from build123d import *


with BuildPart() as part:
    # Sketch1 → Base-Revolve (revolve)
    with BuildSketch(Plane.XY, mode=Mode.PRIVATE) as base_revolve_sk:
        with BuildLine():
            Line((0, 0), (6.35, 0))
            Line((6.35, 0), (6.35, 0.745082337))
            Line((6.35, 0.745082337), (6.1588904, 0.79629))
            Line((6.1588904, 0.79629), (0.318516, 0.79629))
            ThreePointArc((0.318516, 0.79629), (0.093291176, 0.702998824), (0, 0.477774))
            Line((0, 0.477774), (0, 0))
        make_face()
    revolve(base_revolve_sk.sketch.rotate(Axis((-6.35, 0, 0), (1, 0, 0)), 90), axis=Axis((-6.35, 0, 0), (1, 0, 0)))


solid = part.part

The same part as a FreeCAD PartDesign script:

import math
import FreeCAD as App
import Part
import Sketcher
from FreeCAD import Vector
Q = App.Units.Quantity

doc = App.newDocument("Part")
body = doc.addObject("PartDesign::Body", "Body")

# Sketch on XY plane
sketch1 = body.newObject("Sketcher::SketchObject", "Sketch")
sketch1.AttachmentSupport = (doc.getObject("XY_Plane"), [""])
sketch1.MapMode = "FlatFace"
sketch1.addGeometry(Part.LineSegment(Vector(0, 0, 0), Vector(6.35, 0, 0)), False)
sketch1.addGeometry(Part.LineSegment(Vector(6.35, 0, 0), Vector(6.35, 0.75, 0)), False)
sketch1.addGeometry(Part.LineSegment(Vector(6.35, 0.75, 0), Vector(6.16, 0.8, 0)), False)
sketch1.addGeometry(Part.LineSegment(Vector(6.16, 0.8, 0), Vector(0.32, 0.8, 0)), False)
sketch1.addGeometry(Part.ArcOfCircle(Part.Circle(Vector(0.32, 0.48, 0), Vector(0, 0, 1), 0.32), math.radians(90), math.radians(180)), False)
sketch1.addGeometry(Part.LineSegment(Vector(0, 0.48, 0), Vector(0, 0, 0)), False)
sketch1.addConstraint(Sketcher.Constraint("Coincident", 0, 2, 1, 1))
sketch1.addConstraint(Sketcher.Constraint("Coincident", 1, 2, 2, 1))
sketch1.addConstraint(Sketcher.Constraint("Coincident", 2, 2, 3, 1))
sketch1.addConstraint(Sketcher.Constraint("Tangent", 3, 2, 4, 1))
sketch1.addConstraint(Sketcher.Constraint("Tangent", 4, 2, 5, 1))
sketch1.addConstraint(Sketcher.Constraint("Coincident", 5, 2, 0, 1))
sketch1.addConstraint(Sketcher.Constraint("Horizontal", 0))
sketch1.addConstraint(Sketcher.Constraint("Vertical", 1))
sketch1.addConstraint(Sketcher.Constraint("Horizontal", 3))
sketch1.addConstraint(Sketcher.Constraint("Vertical", 5))
sketch1.addConstraint(Sketcher.Constraint("Coincident", 5, 2, -1, 1))
sketch1.addConstraint(Sketcher.Constraint("Angle", 2, Q("165 deg")))
sketch1.addConstraint(Sketcher.Constraint("DistanceX", 0, 1, 0, 2, Q("0.25 in")))
sketch1.addConstraint(Sketcher.Constraint("Radius", 4, 0.318516))
sketch1.addConstraint(Sketcher.Constraint("Distance", 2, 0.197851))
sketch1.addConstraint(Sketcher.Constraint("DistanceY", 1, 1, 1, 2, 0.745082))
revolution = body.newObject("PartDesign::Revolution", "Revolution")
revolution.Profile = sketch1
revolution.ReferenceAxis = (sketch1, ["H_Axis"])
revolution.Angle = 360

doc.recompute()
